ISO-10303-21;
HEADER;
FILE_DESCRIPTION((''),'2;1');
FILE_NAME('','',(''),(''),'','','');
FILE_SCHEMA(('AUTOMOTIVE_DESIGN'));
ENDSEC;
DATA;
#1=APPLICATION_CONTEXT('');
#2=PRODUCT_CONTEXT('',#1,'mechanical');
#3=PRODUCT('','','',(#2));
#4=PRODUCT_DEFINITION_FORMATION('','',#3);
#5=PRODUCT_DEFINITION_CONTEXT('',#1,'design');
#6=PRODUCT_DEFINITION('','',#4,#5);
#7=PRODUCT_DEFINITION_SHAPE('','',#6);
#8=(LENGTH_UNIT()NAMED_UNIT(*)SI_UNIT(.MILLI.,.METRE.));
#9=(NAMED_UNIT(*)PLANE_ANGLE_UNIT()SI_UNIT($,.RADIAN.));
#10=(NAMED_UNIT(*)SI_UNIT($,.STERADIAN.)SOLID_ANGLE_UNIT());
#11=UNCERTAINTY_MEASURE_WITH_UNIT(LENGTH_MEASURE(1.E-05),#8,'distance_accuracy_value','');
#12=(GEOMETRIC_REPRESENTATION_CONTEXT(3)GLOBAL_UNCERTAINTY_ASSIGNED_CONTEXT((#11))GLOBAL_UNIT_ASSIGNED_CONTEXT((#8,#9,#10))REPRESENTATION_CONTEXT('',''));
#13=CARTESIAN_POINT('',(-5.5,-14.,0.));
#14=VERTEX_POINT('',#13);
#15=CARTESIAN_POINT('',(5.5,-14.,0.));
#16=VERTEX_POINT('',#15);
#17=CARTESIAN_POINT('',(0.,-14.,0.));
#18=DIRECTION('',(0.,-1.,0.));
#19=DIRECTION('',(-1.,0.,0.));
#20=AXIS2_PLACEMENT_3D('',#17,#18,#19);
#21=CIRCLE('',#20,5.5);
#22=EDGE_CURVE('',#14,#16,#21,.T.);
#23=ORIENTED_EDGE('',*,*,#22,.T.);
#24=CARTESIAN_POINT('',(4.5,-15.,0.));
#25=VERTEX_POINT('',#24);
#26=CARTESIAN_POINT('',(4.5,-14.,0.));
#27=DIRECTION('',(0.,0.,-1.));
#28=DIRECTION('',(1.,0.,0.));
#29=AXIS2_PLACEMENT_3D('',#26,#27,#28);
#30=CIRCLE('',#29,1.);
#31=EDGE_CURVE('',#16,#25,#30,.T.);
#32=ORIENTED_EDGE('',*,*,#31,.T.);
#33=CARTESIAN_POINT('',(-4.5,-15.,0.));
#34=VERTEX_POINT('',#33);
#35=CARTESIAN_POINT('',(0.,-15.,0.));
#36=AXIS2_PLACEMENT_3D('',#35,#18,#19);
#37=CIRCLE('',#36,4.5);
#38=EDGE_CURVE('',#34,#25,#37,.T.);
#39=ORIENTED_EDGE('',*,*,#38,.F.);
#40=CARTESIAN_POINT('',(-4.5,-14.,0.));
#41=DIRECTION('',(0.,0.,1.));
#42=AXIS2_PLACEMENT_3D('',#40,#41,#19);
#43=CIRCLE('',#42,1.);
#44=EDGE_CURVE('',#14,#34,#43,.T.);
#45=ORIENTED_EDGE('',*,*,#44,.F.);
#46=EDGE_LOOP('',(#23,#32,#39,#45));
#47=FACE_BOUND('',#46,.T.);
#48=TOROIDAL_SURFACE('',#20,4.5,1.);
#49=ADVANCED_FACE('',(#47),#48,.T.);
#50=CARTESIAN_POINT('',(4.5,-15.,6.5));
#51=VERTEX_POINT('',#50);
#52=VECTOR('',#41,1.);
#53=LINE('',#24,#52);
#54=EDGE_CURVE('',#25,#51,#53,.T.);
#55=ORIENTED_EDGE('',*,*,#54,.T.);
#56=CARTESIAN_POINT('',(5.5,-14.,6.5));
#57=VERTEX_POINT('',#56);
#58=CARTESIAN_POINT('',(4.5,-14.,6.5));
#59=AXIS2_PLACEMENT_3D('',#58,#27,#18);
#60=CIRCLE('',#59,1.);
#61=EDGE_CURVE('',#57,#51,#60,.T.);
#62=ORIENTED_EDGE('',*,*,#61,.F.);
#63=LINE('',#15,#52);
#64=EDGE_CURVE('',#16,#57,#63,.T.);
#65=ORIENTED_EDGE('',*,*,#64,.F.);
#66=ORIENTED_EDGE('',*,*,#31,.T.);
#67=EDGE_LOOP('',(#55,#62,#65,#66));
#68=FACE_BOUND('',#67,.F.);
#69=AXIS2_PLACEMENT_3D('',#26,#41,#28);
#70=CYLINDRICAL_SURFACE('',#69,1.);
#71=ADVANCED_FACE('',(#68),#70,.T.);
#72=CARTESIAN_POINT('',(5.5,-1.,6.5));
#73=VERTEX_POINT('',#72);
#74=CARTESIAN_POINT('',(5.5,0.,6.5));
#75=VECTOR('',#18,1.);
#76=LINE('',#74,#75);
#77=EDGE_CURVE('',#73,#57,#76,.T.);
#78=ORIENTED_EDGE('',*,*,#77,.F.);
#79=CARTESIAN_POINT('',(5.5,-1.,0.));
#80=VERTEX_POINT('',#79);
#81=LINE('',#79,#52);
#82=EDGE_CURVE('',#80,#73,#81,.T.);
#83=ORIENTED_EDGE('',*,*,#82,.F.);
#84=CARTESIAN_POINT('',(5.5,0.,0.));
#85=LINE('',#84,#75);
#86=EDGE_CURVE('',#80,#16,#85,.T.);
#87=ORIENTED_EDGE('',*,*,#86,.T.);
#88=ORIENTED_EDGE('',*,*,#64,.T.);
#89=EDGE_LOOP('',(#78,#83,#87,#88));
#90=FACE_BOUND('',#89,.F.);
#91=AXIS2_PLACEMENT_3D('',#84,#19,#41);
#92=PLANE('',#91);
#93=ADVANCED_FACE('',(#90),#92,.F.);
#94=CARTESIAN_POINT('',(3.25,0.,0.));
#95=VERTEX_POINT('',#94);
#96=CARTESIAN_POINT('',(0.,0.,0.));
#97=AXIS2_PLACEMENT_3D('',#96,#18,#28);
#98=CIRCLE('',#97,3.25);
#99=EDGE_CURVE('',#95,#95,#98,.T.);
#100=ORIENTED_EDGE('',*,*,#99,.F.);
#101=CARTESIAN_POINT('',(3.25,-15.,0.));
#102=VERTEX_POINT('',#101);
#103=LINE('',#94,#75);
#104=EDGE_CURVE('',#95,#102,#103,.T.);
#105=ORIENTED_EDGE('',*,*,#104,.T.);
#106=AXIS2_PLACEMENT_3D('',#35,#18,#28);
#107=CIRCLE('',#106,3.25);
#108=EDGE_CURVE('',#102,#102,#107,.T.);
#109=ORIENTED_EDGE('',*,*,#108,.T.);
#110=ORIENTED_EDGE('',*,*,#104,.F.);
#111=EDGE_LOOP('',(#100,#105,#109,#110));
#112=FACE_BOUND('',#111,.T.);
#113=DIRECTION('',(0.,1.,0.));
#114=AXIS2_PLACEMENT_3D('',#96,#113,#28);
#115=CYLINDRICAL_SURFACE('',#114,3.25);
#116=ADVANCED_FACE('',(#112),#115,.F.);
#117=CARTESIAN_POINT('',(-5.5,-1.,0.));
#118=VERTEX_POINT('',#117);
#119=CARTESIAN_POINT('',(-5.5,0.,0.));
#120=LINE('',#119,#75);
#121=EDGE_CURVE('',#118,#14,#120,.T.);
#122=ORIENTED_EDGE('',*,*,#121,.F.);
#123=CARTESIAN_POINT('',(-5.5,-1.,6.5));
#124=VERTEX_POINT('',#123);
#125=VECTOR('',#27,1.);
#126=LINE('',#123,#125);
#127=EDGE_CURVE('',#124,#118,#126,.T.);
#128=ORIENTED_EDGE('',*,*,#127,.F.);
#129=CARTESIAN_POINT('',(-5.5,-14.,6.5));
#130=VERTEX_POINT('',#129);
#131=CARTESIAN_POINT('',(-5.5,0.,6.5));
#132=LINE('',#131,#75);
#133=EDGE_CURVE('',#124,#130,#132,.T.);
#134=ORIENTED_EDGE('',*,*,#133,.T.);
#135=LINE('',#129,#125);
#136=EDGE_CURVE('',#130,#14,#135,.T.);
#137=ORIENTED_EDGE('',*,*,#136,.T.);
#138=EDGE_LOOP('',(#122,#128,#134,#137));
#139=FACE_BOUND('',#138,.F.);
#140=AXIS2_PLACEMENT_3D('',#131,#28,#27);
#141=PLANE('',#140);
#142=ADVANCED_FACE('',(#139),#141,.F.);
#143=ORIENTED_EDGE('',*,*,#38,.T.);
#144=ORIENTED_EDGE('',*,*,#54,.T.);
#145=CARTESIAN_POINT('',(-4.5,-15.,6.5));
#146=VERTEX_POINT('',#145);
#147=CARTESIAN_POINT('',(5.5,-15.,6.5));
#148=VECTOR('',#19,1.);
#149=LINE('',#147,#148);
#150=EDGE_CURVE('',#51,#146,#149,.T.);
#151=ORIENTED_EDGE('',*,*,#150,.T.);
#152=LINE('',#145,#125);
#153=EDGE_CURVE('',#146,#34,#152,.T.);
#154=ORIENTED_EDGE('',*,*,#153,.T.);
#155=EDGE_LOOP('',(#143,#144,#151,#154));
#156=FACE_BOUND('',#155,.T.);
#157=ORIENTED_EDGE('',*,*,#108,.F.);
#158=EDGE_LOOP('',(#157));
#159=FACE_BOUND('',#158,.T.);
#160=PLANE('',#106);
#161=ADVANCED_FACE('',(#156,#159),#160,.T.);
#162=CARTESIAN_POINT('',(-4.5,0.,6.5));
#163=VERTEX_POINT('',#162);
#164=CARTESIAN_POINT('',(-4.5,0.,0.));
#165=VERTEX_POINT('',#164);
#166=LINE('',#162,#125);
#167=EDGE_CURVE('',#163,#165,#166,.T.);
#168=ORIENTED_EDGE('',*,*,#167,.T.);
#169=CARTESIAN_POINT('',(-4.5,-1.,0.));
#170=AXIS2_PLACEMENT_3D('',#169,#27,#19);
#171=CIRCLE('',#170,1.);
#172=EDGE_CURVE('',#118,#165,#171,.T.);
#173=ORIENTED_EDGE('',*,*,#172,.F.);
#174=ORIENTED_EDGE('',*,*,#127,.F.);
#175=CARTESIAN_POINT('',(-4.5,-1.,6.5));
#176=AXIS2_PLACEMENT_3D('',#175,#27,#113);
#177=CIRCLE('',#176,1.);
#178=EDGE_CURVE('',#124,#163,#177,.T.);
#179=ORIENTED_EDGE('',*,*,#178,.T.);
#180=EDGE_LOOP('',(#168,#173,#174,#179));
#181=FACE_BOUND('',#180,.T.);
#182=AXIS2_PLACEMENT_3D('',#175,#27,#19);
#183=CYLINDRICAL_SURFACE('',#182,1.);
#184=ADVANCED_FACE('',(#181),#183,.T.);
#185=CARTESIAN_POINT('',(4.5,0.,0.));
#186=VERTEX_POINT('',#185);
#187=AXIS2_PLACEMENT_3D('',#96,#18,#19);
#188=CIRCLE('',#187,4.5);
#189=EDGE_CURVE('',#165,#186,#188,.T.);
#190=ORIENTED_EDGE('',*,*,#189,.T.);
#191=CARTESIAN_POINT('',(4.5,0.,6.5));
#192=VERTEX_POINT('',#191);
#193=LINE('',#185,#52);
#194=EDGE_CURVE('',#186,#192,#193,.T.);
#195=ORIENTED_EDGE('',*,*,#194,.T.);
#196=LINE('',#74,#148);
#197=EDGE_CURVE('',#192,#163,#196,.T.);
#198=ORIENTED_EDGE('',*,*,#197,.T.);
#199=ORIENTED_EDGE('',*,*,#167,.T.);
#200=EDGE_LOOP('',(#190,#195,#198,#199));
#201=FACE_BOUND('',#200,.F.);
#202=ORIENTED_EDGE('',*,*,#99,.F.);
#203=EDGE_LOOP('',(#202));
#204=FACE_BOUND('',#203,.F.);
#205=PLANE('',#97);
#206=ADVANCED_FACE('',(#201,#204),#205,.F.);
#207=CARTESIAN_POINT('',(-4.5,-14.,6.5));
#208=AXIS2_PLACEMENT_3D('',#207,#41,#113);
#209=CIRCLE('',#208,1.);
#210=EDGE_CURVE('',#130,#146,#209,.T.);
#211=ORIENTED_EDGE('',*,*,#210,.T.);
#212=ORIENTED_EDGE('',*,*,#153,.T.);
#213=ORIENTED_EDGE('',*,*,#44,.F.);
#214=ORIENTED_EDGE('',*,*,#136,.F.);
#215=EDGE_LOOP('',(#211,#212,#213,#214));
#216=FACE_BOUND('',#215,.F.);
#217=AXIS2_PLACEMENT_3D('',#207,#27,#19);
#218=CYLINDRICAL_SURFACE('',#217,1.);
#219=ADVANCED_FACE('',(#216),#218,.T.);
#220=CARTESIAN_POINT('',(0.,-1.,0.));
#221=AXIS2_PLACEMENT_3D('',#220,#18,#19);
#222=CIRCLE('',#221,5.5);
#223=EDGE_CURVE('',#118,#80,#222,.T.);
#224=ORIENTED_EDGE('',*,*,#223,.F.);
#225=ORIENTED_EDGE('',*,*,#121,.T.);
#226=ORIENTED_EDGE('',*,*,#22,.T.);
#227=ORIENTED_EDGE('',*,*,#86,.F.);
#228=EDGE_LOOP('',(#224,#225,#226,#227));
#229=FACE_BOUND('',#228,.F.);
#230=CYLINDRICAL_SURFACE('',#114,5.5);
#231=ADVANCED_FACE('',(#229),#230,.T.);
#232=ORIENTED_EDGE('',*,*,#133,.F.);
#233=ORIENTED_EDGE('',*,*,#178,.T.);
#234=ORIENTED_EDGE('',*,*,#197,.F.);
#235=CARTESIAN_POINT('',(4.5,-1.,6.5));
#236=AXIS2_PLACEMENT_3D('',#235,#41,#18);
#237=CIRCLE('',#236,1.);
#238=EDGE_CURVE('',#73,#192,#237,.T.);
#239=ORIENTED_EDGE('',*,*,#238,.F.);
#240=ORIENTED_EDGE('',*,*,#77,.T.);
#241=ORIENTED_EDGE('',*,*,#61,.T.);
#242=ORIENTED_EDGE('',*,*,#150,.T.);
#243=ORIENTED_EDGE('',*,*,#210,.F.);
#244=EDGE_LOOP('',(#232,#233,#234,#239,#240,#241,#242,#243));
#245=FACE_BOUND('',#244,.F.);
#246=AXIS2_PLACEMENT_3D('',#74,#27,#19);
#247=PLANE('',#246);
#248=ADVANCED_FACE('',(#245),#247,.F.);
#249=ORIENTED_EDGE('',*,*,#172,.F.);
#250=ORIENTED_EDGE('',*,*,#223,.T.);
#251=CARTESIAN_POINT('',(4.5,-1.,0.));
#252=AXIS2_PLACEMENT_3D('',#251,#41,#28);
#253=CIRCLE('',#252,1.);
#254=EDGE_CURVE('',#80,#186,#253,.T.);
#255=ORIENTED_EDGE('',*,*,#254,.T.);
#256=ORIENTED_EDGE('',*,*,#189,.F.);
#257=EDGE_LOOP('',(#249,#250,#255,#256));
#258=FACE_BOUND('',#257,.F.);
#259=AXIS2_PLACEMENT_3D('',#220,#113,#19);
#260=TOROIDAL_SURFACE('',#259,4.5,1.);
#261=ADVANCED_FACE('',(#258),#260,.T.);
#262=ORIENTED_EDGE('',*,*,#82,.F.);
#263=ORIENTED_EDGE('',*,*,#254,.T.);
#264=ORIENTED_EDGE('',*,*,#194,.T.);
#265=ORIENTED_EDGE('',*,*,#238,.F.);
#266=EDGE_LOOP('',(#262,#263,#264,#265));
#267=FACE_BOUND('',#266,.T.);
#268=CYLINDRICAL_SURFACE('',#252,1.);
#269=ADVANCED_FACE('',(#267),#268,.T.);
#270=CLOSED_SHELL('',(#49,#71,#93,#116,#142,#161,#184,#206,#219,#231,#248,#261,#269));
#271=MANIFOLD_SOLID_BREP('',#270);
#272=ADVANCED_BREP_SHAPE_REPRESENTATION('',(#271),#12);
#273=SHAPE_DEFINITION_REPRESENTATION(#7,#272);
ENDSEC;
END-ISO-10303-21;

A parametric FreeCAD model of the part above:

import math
import FreeCAD as App
import Part
import Sketcher

V = App.Vector


def edges_at(feature, points):
    """Names of the edges that pass closest to the given points."""
    edges = feature.Shape.Edges
    near = lambda p: min(range(len(edges)), key=lambda i: edges[i].distToShape(Part.Vertex(*p))[0])
    return sorted({f"Edge{near(p) + 1}" for p in points})

doc = App.newDocument("Part")
params = doc.addObject("Spreadsheet::Sheet", "Params")
for row, (alias, value) in enumerate([
    ("sketch1_diameter", "6.5 mm"),
    ("sketch1_radius", "5.5 mm"),
    ("sketch1_height", "6.5 mm"),
    ("pad1_length", "15 mm"),
    ("fillet_radius", "1 mm"),
], start=1):
    params.set(f"A{row}", alias)
    params.set(f"B{row}", "=" + value)
    params.setAlias(f"B{row}", alias)

body = doc.addObject("PartDesign::Body", "Body")

# Sketch on XZ plane
sketch1 = body.newObject("Sketcher::SketchObject", "Sketch")
sketch1.AttachmentSupport = (doc.getObject("XZ_Plane"), [""])
sketch1.MapMode = "FlatFace"
sketch1.addGeometry([
    Part.ArcOfCircle(Part.Circle(V(0, 0, 0), V(0, 0, 1), 5.5), math.radians(180), math.radians(360)),  # 0
    Part.LineSegment(V(5.5, 0, 0), V(5.5, 6.5, 0)),  # 1
    Part.LineSegment(V(5.5, 6.5, 0), V(-5.5, 6.5, 0)),  # 2
    Part.LineSegment(V(-5.5, 6.5, 0), V(-5.5, 0, 0)),  # 3
    Part.Circle(V(0, 0, 0), V(0, 0, 1), 3.2),  # 4
], False)
sketch1.addConstraint([
    Sketcher.Constraint("Tangent", 0, 2, 1, 1),
    Sketcher.Constraint("Coincident", 1, 2, 2, 1),
    Sketcher.Constraint("Coincident", 2, 2, 3, 1),
    Sketcher.Constraint("Tangent", 3, 2, 0, 1),
    Sketcher.Constraint("Vertical", 1),
    Sketcher.Constraint("Horizontal", 2),
    Sketcher.Constraint("Vertical", 3),
    Sketcher.Constraint("Coincident", 0, 3, -1, 1),
    Sketcher.Constraint("Coincident", 4, 3, -1, 1),
    Sketcher.Constraint("Diameter", 4, 6.5),
    Sketcher.Constraint("Radius", 0, 5.5),
    Sketcher.Constraint("DistanceY", 1, 1, 1, 2, 6.5),
])
sketch1.setExpression("Constraints[9]", "Params.sketch1_diameter")
sketch1.setExpression("Constraints[10]", "Params.sketch1_radius")
sketch1.setExpression("Constraints[11]", "Params.sketch1_height")
pad1 = body.newObject("PartDesign::Pad", "Pad")
pad1.Profile = sketch1
pad1.setExpression("Length", "Params.pad1_length")
doc.recompute()

fillet = body.newObject("PartDesign::Fillet", "Fillet")
fillet.Base = (pad1, edges_at(pad1, [(0, -15, -5.5), (0, 0, -5.5)]))
fillet.setExpression("Radius", "Params.fillet_radius")

doc.recompute()
